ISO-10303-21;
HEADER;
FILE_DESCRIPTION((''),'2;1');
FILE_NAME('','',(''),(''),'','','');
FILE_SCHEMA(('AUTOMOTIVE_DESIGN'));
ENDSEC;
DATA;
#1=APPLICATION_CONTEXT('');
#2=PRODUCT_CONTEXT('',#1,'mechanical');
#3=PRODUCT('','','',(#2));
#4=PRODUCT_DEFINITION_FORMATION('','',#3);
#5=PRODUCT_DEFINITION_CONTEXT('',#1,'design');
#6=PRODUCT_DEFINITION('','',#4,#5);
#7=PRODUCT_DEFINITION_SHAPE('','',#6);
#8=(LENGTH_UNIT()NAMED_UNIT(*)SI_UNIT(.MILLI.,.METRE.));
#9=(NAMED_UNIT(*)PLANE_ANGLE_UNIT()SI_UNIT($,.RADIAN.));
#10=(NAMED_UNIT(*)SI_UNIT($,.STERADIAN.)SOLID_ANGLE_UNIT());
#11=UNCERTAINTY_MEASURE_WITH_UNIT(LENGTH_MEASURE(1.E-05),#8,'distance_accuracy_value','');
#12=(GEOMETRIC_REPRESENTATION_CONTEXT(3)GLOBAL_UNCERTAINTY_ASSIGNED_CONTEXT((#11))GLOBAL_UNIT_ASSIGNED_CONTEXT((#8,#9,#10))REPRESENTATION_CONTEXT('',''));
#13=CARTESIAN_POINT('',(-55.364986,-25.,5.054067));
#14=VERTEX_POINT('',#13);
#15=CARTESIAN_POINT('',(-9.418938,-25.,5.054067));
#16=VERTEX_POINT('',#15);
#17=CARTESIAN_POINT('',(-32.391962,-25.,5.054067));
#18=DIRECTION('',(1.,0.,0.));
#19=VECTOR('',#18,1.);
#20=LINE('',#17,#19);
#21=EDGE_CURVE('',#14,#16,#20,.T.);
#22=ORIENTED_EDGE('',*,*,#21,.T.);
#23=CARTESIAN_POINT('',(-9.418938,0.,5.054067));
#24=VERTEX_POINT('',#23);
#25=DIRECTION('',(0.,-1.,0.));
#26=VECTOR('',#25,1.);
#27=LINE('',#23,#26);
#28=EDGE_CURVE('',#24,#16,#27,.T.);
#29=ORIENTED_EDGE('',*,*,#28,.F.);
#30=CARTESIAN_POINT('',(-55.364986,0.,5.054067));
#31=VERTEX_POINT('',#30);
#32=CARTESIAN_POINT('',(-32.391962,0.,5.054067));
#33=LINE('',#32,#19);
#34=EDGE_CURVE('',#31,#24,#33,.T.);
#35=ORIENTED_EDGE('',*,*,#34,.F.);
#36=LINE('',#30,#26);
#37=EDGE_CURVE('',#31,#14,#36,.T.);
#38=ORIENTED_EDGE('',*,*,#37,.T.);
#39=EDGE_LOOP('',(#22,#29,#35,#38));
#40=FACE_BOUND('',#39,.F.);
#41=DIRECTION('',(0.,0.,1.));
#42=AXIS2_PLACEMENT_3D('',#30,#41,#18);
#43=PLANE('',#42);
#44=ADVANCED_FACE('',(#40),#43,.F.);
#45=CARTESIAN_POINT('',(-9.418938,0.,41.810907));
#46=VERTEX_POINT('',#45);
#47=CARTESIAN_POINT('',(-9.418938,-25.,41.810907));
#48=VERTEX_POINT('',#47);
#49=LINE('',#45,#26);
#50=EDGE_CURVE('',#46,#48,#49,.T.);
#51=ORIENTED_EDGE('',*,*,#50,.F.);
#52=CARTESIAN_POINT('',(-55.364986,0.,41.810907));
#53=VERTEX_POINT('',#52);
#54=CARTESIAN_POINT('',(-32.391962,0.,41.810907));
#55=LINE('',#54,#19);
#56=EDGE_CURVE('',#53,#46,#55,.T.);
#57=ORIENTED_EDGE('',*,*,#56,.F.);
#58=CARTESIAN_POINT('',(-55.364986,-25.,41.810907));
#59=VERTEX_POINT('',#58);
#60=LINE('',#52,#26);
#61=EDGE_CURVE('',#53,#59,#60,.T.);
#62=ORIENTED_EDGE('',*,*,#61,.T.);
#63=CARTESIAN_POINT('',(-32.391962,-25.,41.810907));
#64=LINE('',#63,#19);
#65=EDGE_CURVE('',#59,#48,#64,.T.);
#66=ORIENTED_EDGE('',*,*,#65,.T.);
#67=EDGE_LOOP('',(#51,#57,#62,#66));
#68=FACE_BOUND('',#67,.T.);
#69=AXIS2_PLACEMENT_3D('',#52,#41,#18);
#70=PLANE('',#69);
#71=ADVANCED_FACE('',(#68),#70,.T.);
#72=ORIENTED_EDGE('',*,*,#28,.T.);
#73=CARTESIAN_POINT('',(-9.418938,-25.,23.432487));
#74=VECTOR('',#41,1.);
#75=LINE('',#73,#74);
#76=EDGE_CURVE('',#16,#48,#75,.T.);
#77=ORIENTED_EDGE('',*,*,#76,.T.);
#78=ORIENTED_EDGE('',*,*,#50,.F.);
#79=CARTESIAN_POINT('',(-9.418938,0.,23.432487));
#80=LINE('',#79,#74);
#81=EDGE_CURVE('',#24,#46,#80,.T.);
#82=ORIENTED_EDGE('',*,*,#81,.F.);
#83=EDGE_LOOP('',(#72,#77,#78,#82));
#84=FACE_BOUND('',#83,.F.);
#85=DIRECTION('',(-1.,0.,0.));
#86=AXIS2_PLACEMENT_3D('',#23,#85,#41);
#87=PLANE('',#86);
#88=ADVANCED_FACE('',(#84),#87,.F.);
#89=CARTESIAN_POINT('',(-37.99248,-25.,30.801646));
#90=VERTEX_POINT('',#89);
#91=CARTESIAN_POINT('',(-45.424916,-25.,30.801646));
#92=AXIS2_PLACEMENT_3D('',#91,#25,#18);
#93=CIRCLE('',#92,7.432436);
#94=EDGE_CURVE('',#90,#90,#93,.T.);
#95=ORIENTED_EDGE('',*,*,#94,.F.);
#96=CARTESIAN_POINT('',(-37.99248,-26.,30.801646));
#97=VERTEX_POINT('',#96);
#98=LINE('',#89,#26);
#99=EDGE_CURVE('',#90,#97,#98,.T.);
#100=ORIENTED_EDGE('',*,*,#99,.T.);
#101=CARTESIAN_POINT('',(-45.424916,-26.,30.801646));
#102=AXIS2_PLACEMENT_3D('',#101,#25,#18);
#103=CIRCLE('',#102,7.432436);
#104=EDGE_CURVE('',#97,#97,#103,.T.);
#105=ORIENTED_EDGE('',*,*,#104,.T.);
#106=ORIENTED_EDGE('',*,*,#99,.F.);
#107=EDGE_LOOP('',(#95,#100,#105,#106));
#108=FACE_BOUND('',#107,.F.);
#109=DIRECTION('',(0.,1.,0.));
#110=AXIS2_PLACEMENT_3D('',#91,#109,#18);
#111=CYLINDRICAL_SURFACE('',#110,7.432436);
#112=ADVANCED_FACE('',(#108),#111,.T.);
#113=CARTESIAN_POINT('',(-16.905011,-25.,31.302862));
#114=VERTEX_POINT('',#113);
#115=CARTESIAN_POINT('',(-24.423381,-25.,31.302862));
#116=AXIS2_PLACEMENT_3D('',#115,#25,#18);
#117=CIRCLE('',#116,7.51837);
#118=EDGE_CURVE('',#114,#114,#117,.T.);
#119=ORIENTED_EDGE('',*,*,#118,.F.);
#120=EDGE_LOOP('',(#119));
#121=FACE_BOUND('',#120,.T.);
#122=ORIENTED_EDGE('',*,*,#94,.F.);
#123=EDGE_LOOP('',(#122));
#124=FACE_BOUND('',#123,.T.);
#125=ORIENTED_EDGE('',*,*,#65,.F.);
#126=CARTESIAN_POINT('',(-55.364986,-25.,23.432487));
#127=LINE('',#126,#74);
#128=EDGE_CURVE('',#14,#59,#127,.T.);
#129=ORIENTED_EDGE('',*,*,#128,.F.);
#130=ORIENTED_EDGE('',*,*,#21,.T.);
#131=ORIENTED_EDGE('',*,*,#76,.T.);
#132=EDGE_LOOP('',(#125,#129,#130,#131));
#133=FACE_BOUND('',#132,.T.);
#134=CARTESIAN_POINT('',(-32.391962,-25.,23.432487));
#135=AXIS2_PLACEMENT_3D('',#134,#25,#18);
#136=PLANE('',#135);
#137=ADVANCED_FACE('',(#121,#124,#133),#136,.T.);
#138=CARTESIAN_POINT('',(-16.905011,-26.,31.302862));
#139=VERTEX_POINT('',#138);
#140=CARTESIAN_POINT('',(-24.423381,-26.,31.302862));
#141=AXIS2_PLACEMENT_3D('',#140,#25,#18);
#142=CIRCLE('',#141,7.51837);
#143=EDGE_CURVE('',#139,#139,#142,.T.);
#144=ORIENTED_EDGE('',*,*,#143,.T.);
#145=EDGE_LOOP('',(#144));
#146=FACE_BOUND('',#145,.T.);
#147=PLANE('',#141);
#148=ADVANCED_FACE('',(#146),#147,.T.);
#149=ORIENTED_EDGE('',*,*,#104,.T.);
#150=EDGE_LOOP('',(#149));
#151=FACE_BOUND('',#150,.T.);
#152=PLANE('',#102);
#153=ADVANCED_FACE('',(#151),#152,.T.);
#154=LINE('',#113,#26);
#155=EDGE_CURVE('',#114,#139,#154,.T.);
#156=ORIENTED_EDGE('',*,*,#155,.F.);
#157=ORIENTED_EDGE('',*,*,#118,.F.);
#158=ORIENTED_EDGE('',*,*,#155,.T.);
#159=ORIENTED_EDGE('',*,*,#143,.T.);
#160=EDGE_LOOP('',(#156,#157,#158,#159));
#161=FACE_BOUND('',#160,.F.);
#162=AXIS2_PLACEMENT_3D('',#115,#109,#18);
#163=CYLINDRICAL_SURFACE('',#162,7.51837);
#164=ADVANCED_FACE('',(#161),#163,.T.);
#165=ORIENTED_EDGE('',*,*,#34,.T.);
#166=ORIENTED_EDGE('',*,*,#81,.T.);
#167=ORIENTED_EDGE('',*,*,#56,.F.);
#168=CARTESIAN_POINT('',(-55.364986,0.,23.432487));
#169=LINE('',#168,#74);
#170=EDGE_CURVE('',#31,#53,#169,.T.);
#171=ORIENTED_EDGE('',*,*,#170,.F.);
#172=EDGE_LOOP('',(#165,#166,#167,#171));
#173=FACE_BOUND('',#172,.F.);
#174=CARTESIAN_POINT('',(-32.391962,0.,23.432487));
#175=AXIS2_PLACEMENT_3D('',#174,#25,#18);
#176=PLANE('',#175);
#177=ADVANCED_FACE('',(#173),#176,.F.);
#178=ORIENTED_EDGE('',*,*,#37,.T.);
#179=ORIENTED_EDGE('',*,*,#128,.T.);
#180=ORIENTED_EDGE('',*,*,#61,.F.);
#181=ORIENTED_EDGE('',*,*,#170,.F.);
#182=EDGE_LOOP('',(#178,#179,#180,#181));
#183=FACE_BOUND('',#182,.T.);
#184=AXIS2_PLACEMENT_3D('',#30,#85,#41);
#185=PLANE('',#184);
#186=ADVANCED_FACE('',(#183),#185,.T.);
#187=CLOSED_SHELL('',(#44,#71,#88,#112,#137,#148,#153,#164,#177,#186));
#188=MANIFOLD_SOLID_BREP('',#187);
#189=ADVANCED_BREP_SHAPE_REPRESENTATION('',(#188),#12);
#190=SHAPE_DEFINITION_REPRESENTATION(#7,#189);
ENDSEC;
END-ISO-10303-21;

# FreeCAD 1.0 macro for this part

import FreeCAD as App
import Part
import Sketcher
from FreeCAD import Vector


def add_polygon(sketch, points):
    """Adds a closed chain of lines whose ends are joined by coincident constraints."""
    first, n = sketch.GeometryCount, len(points)
    for a, b in zip(points, points[1:] + points[:1]):
        sketch.addGeometry(Part.LineSegment(App.Vector(*a, 0), App.Vector(*b, 0)), False)
    for i in range(n):
        sketch.addConstraint(Sketcher.Constraint("Coincident", first + i, 2, first + (i + 1) % n, 1))

doc = App.newDocument("Part")
params = doc.addObject("Spreadsheet::Sheet", "Params")
for row, (alias, value) in enumerate([
    ("pad1_length", "25 mm"),
    ("pad2_length", "1 mm"),
], start=1):
    params.set(f"A{row}", alias)
    params.set(f"B{row}", "=" + value)
    params.setAlias(f"B{row}", alias)

body = doc.addObject("PartDesign::Body", "Body")

# Sketch on XZ plane
sketch1 = body.newObject("Sketcher::SketchObject", "Sketch")
sketch1.AttachmentSupport = (doc.getObject("XZ_Plane"), [""])
sketch1.MapMode = "FlatFace"
add_polygon(sketch1, [(-55, 42), (-55, 5), (-9, 5), (-9, 42)])  # lines 0-3
sketch1.addConstraint([
    Sketcher.Constraint("Vertical", 0),
    Sketcher.Constraint("Horizontal", 1),
    Sketcher.Constraint("Vertical", 2),
    Sketcher.Constraint("Horizontal", 3),
    Sketcher.Constraint("DistanceY", 0, 2, 0, 1, 36.75684),
    Sketcher.Constraint("DistanceX", 1, 1, 1, 2, 45.946047),
    Sketcher.Constraint("DistanceX", 1, 2, -1, 1, 9.418938),
    Sketcher.Constraint("DistanceY", -1, 1, 0, 2, 5.054067),
])
pad1 = body.newObject("PartDesign::Pad", "Pad")
pad1.Profile = sketch1
pad1.setExpression("Length", "Params.pad1_length")

# Sketch on XZ plane
sketch2 = body.newObject("Sketcher::SketchObject", "Sketch001")
sketch2.AttachmentSupport = (doc.getObject("XZ_Plane"), [""])
sketch2.MapMode = "FlatFace"
sketch2.AttachmentOffset = App.Placement(Vector(0, 0, 25), App.Rotation())
sketch2.addGeometry([
    Part.Circle(Vector(-45, 31, 0), Vector(0, 0, 1), 7),
    Part.Circle(Vector(-24, 31, 0), Vector(0, 0, 1), 8),
], False)
sketch2.addConstraint([
    Sketcher.Constraint("Diameter", 1, 15.03674),
    Sketcher.Constraint("Diameter", 0, 14.864872),
    Sketcher.Constraint("DistanceX", 1, 3, -1, 1, 24.423381),
    Sketcher.Constraint("DistanceX", 0, 3, -1, 1, 45.424916),
    Sketcher.Constraint("DistanceY", -1, 1, 0, 3, 30.801646),
    Sketcher.Constraint("DistanceY", -1, 1, 1, 3, 31.302862),
])
pad2 = body.newObject("PartDesign::Pad", "Pad001")
pad2.Profile = sketch2
pad2.setExpression("Length", "Params.pad2_length")

doc.recompute()
